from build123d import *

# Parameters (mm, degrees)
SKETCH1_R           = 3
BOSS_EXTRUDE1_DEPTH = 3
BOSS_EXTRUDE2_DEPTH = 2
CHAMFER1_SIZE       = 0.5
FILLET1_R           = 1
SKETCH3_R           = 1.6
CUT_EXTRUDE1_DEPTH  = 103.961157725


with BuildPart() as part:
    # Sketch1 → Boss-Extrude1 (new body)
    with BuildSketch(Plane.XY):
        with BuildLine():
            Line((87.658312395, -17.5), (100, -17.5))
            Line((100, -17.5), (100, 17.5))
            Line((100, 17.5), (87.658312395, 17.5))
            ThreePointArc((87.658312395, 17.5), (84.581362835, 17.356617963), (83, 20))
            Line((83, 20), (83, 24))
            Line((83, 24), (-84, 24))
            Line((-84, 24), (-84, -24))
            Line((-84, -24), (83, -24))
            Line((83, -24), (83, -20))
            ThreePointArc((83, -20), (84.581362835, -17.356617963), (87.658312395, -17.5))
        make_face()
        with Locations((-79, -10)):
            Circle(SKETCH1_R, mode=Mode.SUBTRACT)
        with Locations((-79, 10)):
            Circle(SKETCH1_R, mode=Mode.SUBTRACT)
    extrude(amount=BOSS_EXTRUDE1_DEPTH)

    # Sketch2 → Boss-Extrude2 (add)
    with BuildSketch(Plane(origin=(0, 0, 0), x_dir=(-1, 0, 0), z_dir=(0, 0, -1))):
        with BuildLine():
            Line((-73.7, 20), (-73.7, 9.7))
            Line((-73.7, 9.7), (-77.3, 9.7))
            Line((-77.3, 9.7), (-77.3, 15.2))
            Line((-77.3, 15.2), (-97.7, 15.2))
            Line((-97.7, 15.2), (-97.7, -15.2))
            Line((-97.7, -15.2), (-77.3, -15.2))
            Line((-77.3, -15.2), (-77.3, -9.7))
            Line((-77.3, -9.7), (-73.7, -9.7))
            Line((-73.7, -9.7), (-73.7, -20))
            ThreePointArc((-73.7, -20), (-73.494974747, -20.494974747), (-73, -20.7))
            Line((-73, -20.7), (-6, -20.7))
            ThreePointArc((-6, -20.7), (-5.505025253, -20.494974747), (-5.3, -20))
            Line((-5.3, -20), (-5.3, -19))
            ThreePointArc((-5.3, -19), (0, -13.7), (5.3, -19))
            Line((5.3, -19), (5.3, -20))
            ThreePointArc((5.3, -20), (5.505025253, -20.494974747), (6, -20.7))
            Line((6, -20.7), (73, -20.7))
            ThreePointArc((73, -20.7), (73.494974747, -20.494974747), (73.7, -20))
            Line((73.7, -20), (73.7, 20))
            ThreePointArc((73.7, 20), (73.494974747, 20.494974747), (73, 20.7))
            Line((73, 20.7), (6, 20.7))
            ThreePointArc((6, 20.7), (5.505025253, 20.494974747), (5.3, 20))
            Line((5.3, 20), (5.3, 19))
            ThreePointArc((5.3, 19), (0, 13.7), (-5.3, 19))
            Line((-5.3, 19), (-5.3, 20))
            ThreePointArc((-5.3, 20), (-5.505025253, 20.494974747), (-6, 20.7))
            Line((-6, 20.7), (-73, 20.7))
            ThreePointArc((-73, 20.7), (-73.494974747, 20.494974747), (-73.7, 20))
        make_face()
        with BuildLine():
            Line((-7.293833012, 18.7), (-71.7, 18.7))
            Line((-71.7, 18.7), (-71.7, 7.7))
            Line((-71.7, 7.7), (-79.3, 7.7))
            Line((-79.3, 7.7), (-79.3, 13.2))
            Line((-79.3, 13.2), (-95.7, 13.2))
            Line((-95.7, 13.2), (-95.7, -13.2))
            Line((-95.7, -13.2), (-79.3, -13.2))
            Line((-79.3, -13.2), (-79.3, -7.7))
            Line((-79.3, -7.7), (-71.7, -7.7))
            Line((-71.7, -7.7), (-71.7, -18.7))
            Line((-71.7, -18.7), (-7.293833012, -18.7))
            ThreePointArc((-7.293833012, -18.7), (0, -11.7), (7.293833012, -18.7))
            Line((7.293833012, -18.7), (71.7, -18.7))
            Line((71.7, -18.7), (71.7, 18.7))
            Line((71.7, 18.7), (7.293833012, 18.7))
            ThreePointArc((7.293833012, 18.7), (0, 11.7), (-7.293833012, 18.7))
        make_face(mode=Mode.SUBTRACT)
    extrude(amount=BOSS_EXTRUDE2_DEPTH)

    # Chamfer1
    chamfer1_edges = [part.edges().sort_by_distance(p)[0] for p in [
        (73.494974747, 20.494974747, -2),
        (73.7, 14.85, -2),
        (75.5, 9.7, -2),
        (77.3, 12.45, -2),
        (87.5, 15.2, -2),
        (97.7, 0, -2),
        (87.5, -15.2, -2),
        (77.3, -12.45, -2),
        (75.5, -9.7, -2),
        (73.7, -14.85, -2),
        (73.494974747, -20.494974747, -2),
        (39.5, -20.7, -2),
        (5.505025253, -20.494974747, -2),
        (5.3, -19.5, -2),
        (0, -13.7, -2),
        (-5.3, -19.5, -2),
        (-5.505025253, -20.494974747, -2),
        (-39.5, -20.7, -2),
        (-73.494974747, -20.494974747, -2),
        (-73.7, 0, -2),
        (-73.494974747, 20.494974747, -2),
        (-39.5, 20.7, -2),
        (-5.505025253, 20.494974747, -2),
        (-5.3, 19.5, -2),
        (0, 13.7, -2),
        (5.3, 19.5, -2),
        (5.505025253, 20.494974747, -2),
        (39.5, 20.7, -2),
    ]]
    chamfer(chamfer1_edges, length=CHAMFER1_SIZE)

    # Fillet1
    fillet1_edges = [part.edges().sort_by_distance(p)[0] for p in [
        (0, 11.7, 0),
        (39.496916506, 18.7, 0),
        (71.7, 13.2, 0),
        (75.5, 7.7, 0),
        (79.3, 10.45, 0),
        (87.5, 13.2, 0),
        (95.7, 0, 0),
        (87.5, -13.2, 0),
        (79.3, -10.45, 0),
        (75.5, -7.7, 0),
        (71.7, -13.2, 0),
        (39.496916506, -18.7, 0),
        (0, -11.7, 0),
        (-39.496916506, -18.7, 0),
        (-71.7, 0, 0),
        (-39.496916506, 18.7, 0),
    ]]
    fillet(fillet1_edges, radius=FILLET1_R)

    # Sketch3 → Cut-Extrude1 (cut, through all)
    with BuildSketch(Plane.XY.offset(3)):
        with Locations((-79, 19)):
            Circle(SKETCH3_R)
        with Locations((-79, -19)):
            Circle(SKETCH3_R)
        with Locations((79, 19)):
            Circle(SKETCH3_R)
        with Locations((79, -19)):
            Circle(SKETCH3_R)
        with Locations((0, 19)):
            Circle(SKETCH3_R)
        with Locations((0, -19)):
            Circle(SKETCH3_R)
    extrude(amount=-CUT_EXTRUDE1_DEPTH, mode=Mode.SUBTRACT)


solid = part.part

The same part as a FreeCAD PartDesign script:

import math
import FreeCAD as App
import Part
import Sketcher
Q = App.Units.Quantity


def edges_at(feature, points):
    """Names of the edges that pass closest to the given points."""
    edges = feature.Shape.Edges
    near = lambda p: min(range(len(edges)), key=lambda i: edges[i].distToShape(Part.Vertex(*p))[0])
    return sorted({f"Edge{near(p) + 1}" for p in points})

doc = App.newDocument("Part")
params = doc.addObject("Spreadsheet::Sheet", "Params")
for row, (alias, value) in enumerate([
    ("sketch1_diameter", "6 mm"),
    ("sketch1_width", "167 mm"),
    ("sketch1_height", "35 mm"),
    ("sketch1_height2", "4 mm"),
    ("sketch1_height3", "48 mm"),
    ("pad1_length", "3 mm"),
    ("sketch2_radius", "0.7 mm"),
    ("sketch2_radius2", "5.3 mm"),
    ("sketch2_radius3", "7.3 mm"),
    ("sketch2_width", "67 mm"),
    ("sketch2_height", "1 mm"),
    ("pad2_length", "2 mm"),
    ("chamfer_size", "0.5 mm"),
    ("fillet_radius", "1 mm"),
    ("sketch3_diameter", "3.2 mm"),
], start=1):
    params.set(f"A{row}", alias)
    params.set(f"B{row}", "=" + value)
    params.setAlias(f"B{row}", alias)

body = doc.addObject("PartDesign::Body", "Body")

# Sketch on XY plane
sketch1 = doc.addObject("Sketcher::SketchObject", "Sketch")
body.addObject(sketch1)
sketch1.AttachmentSupport = (doc.XY_Plane, [""])
sketch1.MapMode = "FlatFace"
sketch1.addGeometry([
    Part.LineSegment(App.Vector(87.7, -17.5, 0), App.Vector(100, -17.5, 0)),  # 0
    Part.LineSegment(App.Vector(100, -17.5, 0), App.Vector(100, 17.5, 0)),  # 1
    Part.LineSegment(App.Vector(100, 17.5, 0), App.Vector(87.7, 17.5, 0)),  # 2
    Part.ArcOfCircle(Part.Circle(App.Vector(86, 20, 0), App.Vector(0, 0, 1), 3), math.radians(180), math.radians(304)),  # 3
    Part.LineSegment(App.Vector(83, 20, 0), App.Vector(83, 24, 0)),  # 4
    Part.LineSegment(App.Vector(83, 24, 0), App.Vector(-84, 24, 0)),  # 5
    Part.LineSegment(App.Vector(-84, 24, 0), App.Vector(-84, -24, 0)),  # 6
    Part.LineSegment(App.Vector(-84, -24, 0), App.Vector(83, -24, 0)),  # 7
    Part.LineSegment(App.Vector(83, -24, 0), App.Vector(83, -20, 0)),  # 8
    Part.ArcOfCircle(Part.Circle(App.Vector(86, -20, 0), App.Vector(0, 0, 1), 3), math.radians(56), math.radians(180)),  # 9
    Part.Circle(App.Vector(-79, -10, 0), App.Vector(0, 0, 1), 3),  # 10
    Part.Circle(App.Vector(-79, 10, 0), App.Vector(0, 0, 1), 3),  # 11
], False)
sketch1.addConstraint([
    Sketcher.Constraint("Coincident", 0, 2, 1, 1),
    Sketcher.Constraint("Coincident", 1, 2, 2, 1),
    Sketcher.Constraint("Coincident", 2, 2, 3, 2),
    Sketcher.Constraint("Tangent", 3, 1, 4, 1),
    Sketcher.Constraint("Coincident", 4, 2, 5, 1),
    Sketcher.Constraint("Coincident", 5, 2, 6, 1),
    Sketcher.Constraint("Coincident", 6, 2, 7, 1),
    Sketcher.Constraint("Coincident", 7, 2, 8, 1),
    Sketcher.Constraint("Tangent", 8, 2, 9, 2),
    Sketcher.Constraint("Coincident", 9, 1, 0, 1),
    Sketcher.Constraint("Horizontal", 0),
    Sketcher.Constraint("Vertical", 1),
    Sketcher.Constraint("Horizontal", 2),
    Sketcher.Constraint("Vertical", 4),
    Sketcher.Constraint("Horizontal", 5),
    Sketcher.Constraint("Vertical", 6),
    Sketcher.Constraint("Horizontal", 7),
    Sketcher.Constraint("Vertical", 8),
    Sketcher.Constraint("Equal", 3, 9),
    Sketcher.Constraint("Equal", 9, 10),
    Sketcher.Constraint("Equal", 10, 11),
    Sketcher.Constraint("Symmetric", 3, 3, 9, 3, -1),
    Sketcher.Constraint("Symmetric", 10, 3, 11, 3, -1),
    Sketcher.Constraint("Vertical", 2, 2, 9, 1),
    Sketcher.Constraint("Equal", 4, 8),
    Sketcher.Constraint("Diameter", 10, Q("6 mm")),
    Sketcher.Constraint("DistanceX", 5, 2, 5, 1, Q("167 mm")),
    Sketcher.Constraint("DistanceY", 1, 1, 1, 2, Q("35 mm")),
    Sketcher.Constraint("DistanceY", 4, 1, 4, 2, Q("4 mm")),
    Sketcher.Constraint("DistanceY", 6, 2, 6, 1, Q("48 mm")),
    Sketcher.Constraint("DistanceX", -1, 1, 3, 3, Q("86 mm")),
    Sketcher.Constraint("DistanceX", 10, 3, -1, 1, Q("79 mm")),
    Sketcher.Constraint("DistanceY", 10, 3, -1, 1, Q("10 mm")),
    Sketcher.Constraint("DistanceX", -1, 1, 0, 2, Q("100 mm")),
])
sketch1.setExpression("Constraints[25]", "Params.sketch1_diameter")
sketch1.setExpression("Constraints[26]", "Params.sketch1_width")
sketch1.setExpression("Constraints[27]", "Params.sketch1_height")
sketch1.setExpression("Constraints[28]", "Params.sketch1_height2")
sketch1.setExpression("Constraints[29]", "Params.sketch1_height3")
pad1 = doc.addObject("PartDesign::Pad", "Pad")
body.addObject(pad1)
pad1.Profile = sketch1
pad1.setExpression("Length", "Params.pad1_length")

# Sketch on XY plane
sketch2 = doc.addObject("Sketcher::SketchObject", "Sketch001")
body.addObject(sketch2)
sketch2.AttachmentSupport = (doc.XY_Plane, [""])
sketch2.MapMode = "FlatFace"
sketch2.addGeometry([
    Part.LineSegment(App.Vector(73.7, 20, 0), App.Vector(73.7, 9.7, 0)),  # 0
    Part.LineSegment(App.Vector(73.7, 9.7, 0), App.Vector(77.3, 9.7, 0)),  # 1
    Part.LineSegment(App.Vector(77.3, 9.7, 0), App.Vector(77.3, 15.2, 0)),  # 2
    Part.LineSegment(App.Vector(77.3, 15.2, 0), App.Vector(97.7, 15.2, 0)),  # 3
    Part.LineSegment(App.Vector(97.7, 15.2, 0), App.Vector(97.7, -15.2, 0)),  # 4
    Part.LineSegment(App.Vector(97.7, -15.2, 0), App.Vector(77.3, -15.2, 0)),  # 5
    Part.LineSegment(App.Vector(77.3, -15.2, 0), App.Vector(77.3, -9.7, 0)),  # 6
    Part.LineSegment(App.Vector(77.3, -9.7, 0), App.Vector(73.7, -9.7, 0)),  # 7
    Part.LineSegment(App.Vector(73.7, -9.7, 0), App.Vector(73.7, -20, 0)),  # 8
    Part.ArcOfCircle(Part.Circle(App.Vector(73, -20, 0), App.Vector(0, 0, 1), 0.7), math.radians(-90), math.radians(0)),  # 9
    Part.LineSegment(App.Vector(73, -20.7, 0), App.Vector(6, -20.7, 0)),  # 10
    Part.ArcOfCircle(Part.Circle(App.Vector(6, -20, 0), App.Vector(0, 0, 1), 0.7), math.radians(180), math.radians(270)),  # 11
    Part.LineSegment(App.Vector(5.3, -20, 0), App.Vector(5.3, -19, 0)),  # 12
    Part.ArcOfCircle(Part.Circle(App.Vector(0, -19, 0), App.Vector(0, 0, 1), 5.3), math.radians(0), math.radians(180)),  # 13
    Part.LineSegment(App.Vector(-5.3, -19, 0), App.Vector(-5.3, -20, 0)),  # 14
    Part.ArcOfCircle(Part.Circle(App.Vector(-6, -20, 0), App.Vector(0, 0, 1), 0.7), math.radians(-90), math.radians(0)),  # 15
    Part.LineSegment(App.Vector(-6, -20.7, 0), App.Vector(-73, -20.7, 0)),  # 16
    Part.ArcOfCircle(Part.Circle(App.Vector(-73, -20, 0), App.Vector(0, 0, 1), 0.7), math.radians(180), math.radians(270)),  # 17
    Part.LineSegment(App.Vector(-73.7, -20, 0), App.Vector(-73.7, 20, 0)),  # 18
    Part.ArcOfCircle(Part.Circle(App.Vector(-73, 20, 0), App.Vector(0, 0, 1), 0.7), math.radians(90), math.radians(180)),  # 19
    Part.LineSegment(App.Vector(-73, 20.7, 0), App.Vector(-6, 20.7, 0)),  # 20
    Part.ArcOfCircle(Part.Circle(App.Vector(-6, 20, 0), App.Vector(0, 0, 1), 0.7), math.radians(0), math.radians(90)),  # 21
    Part.LineSegment(App.Vector(-5.3, 20, 0), App.Vector(-5.3, 19, 0)),  # 22
    Part.ArcOfCircle(Part.Circle(App.Vector(0, 19, 0), App.Vector(0, 0, 1), 5.3), math.radians(180), math.radians(360)),  # 23
    Part.LineSegment(App.Vector(5.3, 19, 0), App.Vector(5.3, 20, 0)),  # 24
    Part.ArcOfCircle(Part.Circle(App.Vector(6, 20, 0), App.Vector(0, 0, 1), 0.7), math.radians(90), math.radians(180)),  # 25
    Part.LineSegment(App.Vector(6, 20.7, 0), App.Vector(73, 20.7, 0)),  # 26
    Part.ArcOfCircle(Part.Circle(App.Vector(73, 20, 0), App.Vector(0, 0, 1), 0.7), math.radians(0), math.radians(90)),  # 27
    Part.LineSegment(App.Vector(71.7, 18.7, 0), App.Vector(7.3, 18.7, 0)),  # 28
    Part.ArcOfCircle(Part.Circle(App.Vector(0, 19, 0), App.Vector(0, 0, 1), 7.3), math.radians(-178), math.radians(-2)),  # 29
    Part.LineSegment(App.Vector(-7.3, 18.7, 0), App.Vector(-71.7, 18.7, 0)),  # 30
    Part.LineSegment(App.Vector(-71.7, 18.7, 0), App.Vector(-71.7, -18.7, 0)),  # 31
    Part.LineSegment(App.Vector(-71.7, -18.7, 0), App.Vector(-7.3, -18.7, 0)),  # 32
    Part.ArcOfCircle(Part.Circle(App.Vector(0, -19, 0), App.Vector(0, 0, 1), 7.3), math.radians(2), math.radians(178)),  # 33
    Part.LineSegment(App.Vector(7.3, -18.7, 0), App.Vector(71.7, -18.7, 0)),  # 34
    Part.LineSegment(App.Vector(71.7, -18.7, 0), App.Vector(71.7, -7.7, 0)),  # 35
    Part.LineSegment(App.Vector(71.7, -7.7, 0), App.Vector(79.3, -7.7, 0)),  # 36
    Part.LineSegment(App.Vector(79.3, -7.7, 0), App.Vector(79.3, -13.2, 0)),  # 37
    Part.LineSegment(App.Vector(79.3, -13.2, 0), App.Vector(95.7, -13.2, 0)),  # 38
    Part.LineSegment(App.Vector(95.7, -13.2, 0), App.Vector(95.7, 13.2, 0)),  # 39
    Part.LineSegment(App.Vector(95.7, 13.2, 0), App.Vector(79.3, 13.2, 0)),  # 40
    Part.LineSegment(App.Vector(79.3, 13.2, 0), App.Vector(79.3, 7.7, 0)),  # 41
    Part.LineSegment(App.Vector(79.3, 7.7, 0), App.Vector(71.7, 7.7, 0)),  # 42
    Part.LineSegment(App.Vector(71.7, 7.7, 0), App.Vector(71.7, 18.7, 0)),  # 43
], False)
sketch2.addConstraint([
    Sketcher.Constraint("Coincident", 0, 2, 1, 1),
    Sketcher.Constraint("Coincident", 1, 2, 2, 1),
    Sketcher.Constraint("Coincident", 2, 2, 3, 1),
    Sketcher.Constraint("Coincident", 3, 2, 4, 1),
    Sketcher.Constraint("Coincident", 4, 2, 5, 1),
    Sketcher.Constraint("Coincident", 5, 2, 6, 1),
    Sketcher.Constraint("Coincident", 6, 2, 7, 1),
    Sketcher.Constraint("Coincident", 7, 2, 8, 1),
    Sketcher.Constraint("Tangent", 8, 2, 9, 2),
    Sketcher.Constraint("Tangent", 9, 1, 10, 1),
    Sketcher.Constraint("Tangent", 10, 2, 11, 2),
    Sketcher.Constraint("Tangent", 11, 1, 12, 1),
    Sketcher.Constraint("Tangent", 12, 2, 13, 1),
    Sketcher.Constraint("Tangent", 13, 2, 14, 1),
    Sketcher.Constraint("Tangent", 14, 2, 15, 2),
    Sketcher.Constraint("Tangent", 15, 1, 16, 1),
    Sketcher.Constraint("Tangent", 16, 2, 17, 2),
    Sketcher.Constraint("Tangent", 17, 1, 18, 1),
    Sketcher.Constraint("Tangent", 18, 2, 19, 2),
    Sketcher.Constraint("Tangent", 19, 1, 20, 1),
    Sketcher.Constraint("Tangent", 20, 2, 21, 2),
    Sketcher.Constraint("Tangent", 21, 1, 22, 1),
    Sketcher.Constraint("Tangent", 22, 2, 23, 1),
    Sketcher.Constraint("Tangent", 23, 2, 24, 1),
    Sketcher.Constraint("Tangent", 24, 2, 25, 2),
    Sketcher.Constraint("Tangent", 25, 1, 26, 1),
    Sketcher.Constraint("Tangent", 26, 2, 27, 2),
    Sketcher.Constraint("Tangent", 27, 1, 0, 1),
    Sketcher.Constraint("Coincident", 28, 2, 29, 2),
    Sketcher.Constraint("Coincident", 29, 1, 30, 1),
    Sketcher.Constraint("Coincident", 30, 2, 31, 1),
    Sketcher.Constraint("Coincident", 31, 2, 32, 1),
    Sketcher.Constraint("Coincident", 32, 2, 33, 2),
    Sketcher.Constraint("Coincident", 33, 1, 34, 1),
    Sketcher.Constraint("Coincident", 34, 2, 35, 1),
    Sketcher.Constraint("Coincident", 35, 2, 36, 1),
    Sketcher.Constraint("Coincident", 36, 2, 37, 1),
    Sketcher.Constraint("Coincident", 37, 2, 38, 1),
    Sketcher.Constraint("Coincident", 38, 2, 39, 1),
    Sketcher.Constraint("Coincident", 39, 2, 40, 1),
    Sketcher.Constraint("Coincident", 40, 2, 41, 1),
    Sketcher.Constraint("Coincident", 41, 2, 42, 1),
    Sketcher.Constraint("Coincident", 42, 2, 43, 1),
    Sketcher.Constraint("Coincident", 43, 2, 28, 1),
    Sketcher.Constraint("Vertical", 0),
    Sketcher.Constraint("Horizontal", 1),
    Sketcher.Constraint("Vertical", 2),
    Sketcher.Constraint("Horizontal", 3),
    Sketcher.Constraint("Vertical", 4),
    Sketcher.Constraint("Horizontal", 5),
    Sketcher.Constraint("Vertical", 6),
    Sketcher.Constraint("Horizontal", 7),
    Sketcher.Constraint("Vertical", 8),
    Sketcher.Constraint("Horizontal", 10),
    Sketcher.Constraint("Vertical", 12),
    Sketcher.Constraint("Vertical", 14),
    Sketcher.Constraint("Horizontal", 16),
    Sketcher.Constraint("Vertical", 18),
    Sketcher.Constraint("Horizontal", 20),
    Sketcher.Constraint("Vertical", 22),
    Sketcher.Constraint("Vertical", 24),
    Sketcher.Constraint("Horizontal", 26),
    Sketcher.Constraint("Horizontal", 28),
    Sketcher.Constraint("Horizontal", 30),
    Sketcher.Constraint("Vertical", 31),
    Sketcher.Constraint("Horizontal", 32),
    Sketcher.Constraint("Horizontal", 34),
    Sketcher.Constraint("Vertical", 35),
    Sketcher.Constraint("Horizontal", 36),
    Sketcher.Constraint("Vertical", 37),
    Sketcher.Constraint("Horizontal", 38),
    Sketcher.Constraint("Vertical", 39),
    Sketcher.Constraint("Horizontal", 40),
    Sketcher.Constraint("Vertical", 41),
    Sketcher.Constraint("Horizontal", 42),
    Sketcher.Constraint("Vertical", 43),
    Sketcher.Constraint("Coincident", 29, 3, 23, 3),
    Sketcher.Constraint("Coincident", 33, 3, 13, 3),
    Sketcher.Constraint("Equal", 9, 11),
    Sketcher.Constraint("Equal", 11, 15),
    Sketcher.Constraint("Equal", 15, 17),
    Sketcher.Constraint("Equal", 17, 19),
    Sketcher.Constraint("Equal", 19, 21),
    Sketcher.Constraint("Equal", 13, 23),
    Sketcher.Constraint("Equal", 21, 25),
    Sketcher.Constraint("Equal", 25, 27),
    Sketcher.Constraint("Equal", 29, 33),
    Sketcher.Constraint("Symmetric", 9, 3, 19, 3, -1, 1),
    Sketcher.Constraint("Symmetric", 13, 3, 23, 3, -1, 1),
    Sketcher.Constraint("Symmetric", 17, 3, 27, 3, -1, 1),
    Sketcher.Constraint("Symmetric", 30, 2, 34, 2, -1, 1),
    Sketcher.Constraint("Symmetric", 31, 2, 43, 2, -1, 1),
    Sketcher.Constraint("Symmetric", 11, 3, 15, 3, -2),
    Sketcher.Constraint("Symmetric", 2, 2, 5, 2, -1),
    Sketcher.Constraint("Symmetric", 37, 2, 40, 2, -1),
    Sketcher.Constraint("Horizontal", 28, 2, 29, 1),
    Sketcher.Constraint("Equal", 2, 6),
    Sketcher.Constraint("Equal", 6, 37),
    Sketcher.Constraint("Equal", 37, 41),
    Sketcher.Constraint("Radius", 9, Q("0.7 mm")),
    Sketcher.Constraint("Radius", 13, Q("5.3 mm")),
    Sketcher.Constraint("Radius", 29, Q("7.3 mm")),
    Sketcher.Constraint("DistanceX", 10, 2, 10, 1, Q("67 mm")),
    Sketcher.Constraint("DistanceY", 12, 1, 12, 2, Q("1 mm")),
    Sketcher.Constraint("DistanceY", 18, 1, 18, 2, Q("40 mm")),
    Sketcher.Constraint("DistanceY", 35, 1, 35, 2, Q("11 mm")),
    Sketcher.Constraint("DistanceX", 1, 1, 1, 2, Q("3.6 mm")),
    Sketcher.Constraint("DistanceX", 3, 1, 3, 2, Q("20.4 mm")),
    Sketcher.Constraint("DistanceX", 36, 1, 36, 2, Q("7.6 mm")),
    Sketcher.Constraint("DistanceX", 38, 1, 38, 2, Q("16.4 mm")),
    Sketcher.Constraint("DistanceY", 0, 2, 0, 1, Q("10.3 mm")),
    Sketcher.Constraint("DistanceY", 2, 1, 2, 2, Q("5.5 mm")),
    Sketcher.Constraint("DistanceY", 31, 2, 31, 1, Q("37.4 mm")),
    Sketcher.Constraint("DistanceX", 18, 2, 30, 2, Q("2 mm")),
])
sketch2.setExpression("Constraints[99]", "Params.sketch2_radius")
sketch2.setExpression("Constraints[100]", "Params.sketch2_radius2")
sketch2.setExpression("Constraints[101]", "Params.sketch2_radius3")
sketch2.setExpression("Constraints[102]", "Params.sketch2_width")
sketch2.setExpression("Constraints[103]", "Params.sketch2_height")
pad2 = doc.addObject("PartDesign::Pad", "Pad001")
body.addObject(pad2)
pad2.Profile = sketch2
pad2.setExpression("Length", "Params.pad2_length")
pad2.Reversed = True
doc.recompute()

chamfer = doc.addObject("PartDesign::Chamfer", "Chamfer")
body.addObject(chamfer)
chamfer.Base = (pad2, edges_at(pad2, [
    (73.495, 20.495, -2),
    (73.7, 14.85, -2),
    (75.5, 9.7, -2),
    (77.3, 12.45, -2),
    (87.5, 15.2, -2),
    (97.7, 0, -2),
    (87.5, -15.2, -2),
    (77.3, -12.45, -2),
    (75.5, -9.7, -2),
    (73.7, -14.85, -2),
    (73.495, -20.495, -2),
    (39.5, -20.7, -2),
    (5.505, -20.495, -2),
    (5.3, -19.5, -2),
    (0, -13.7, -2),
    (-5.3, -19.5, -2),
    (-5.505, -20.495, -2),
    (-39.5, -20.7, -2),
    (-73.495, -20.495, -2),
    (-73.7, 0, -2),
    (-73.495, 20.495, -2),
    (-39.5, 20.7, -2),
    (-5.505, 20.495, -2),
    (-5.3, 19.5, -2),
    (0, 13.7, -2),
    (5.3, 19.5, -2),
    (5.505, 20.495, -2),
    (39.5, 20.7, -2),
]))
chamfer.setExpression("Size", "Params.chamfer_size")
doc.recompute()

fillet = doc.addObject("PartDesign::Fillet", "Fillet")
body.addObject(fillet)
fillet.Base = (chamfer, edges_at(chamfer, [
    (0, 11.7, 0),
    (39.497, 18.7, 0),
    (71.7, 13.2, 0),
    (75.5, 7.7, 0),
    (79.3, 10.45, 0),
    (87.5, 13.2, 0),
    (95.7, 0, 0),
    (87.5, -13.2, 0),
    (79.3, -10.45, 0),
    (75.5, -7.7, 0),
    (71.7, -13.2, 0),
    (39.497, -18.7, 0),
    (0, -11.7, 0),
    (-39.497, -18.7, 0),
    (-71.7, 0, 0),
    (-39.497, 18.7, 0),
]))
fillet.setExpression("Radius", "Params.fillet_radius")

# Sketch on XY plane
sketch3 = doc.addObject("Sketcher::SketchObject", "Sketch002")
body.addObject(sketch3)
sketch3.AttachmentSupport = (doc.XY_Plane, [""])
sketch3.MapMode = "FlatFace"
sketch3.AttachmentOffset = App.Placement(App.Vector(0, 0, 3), App.Rotation())
sketch3.addGeometry([
    Part.Circle(App.Vector(-79, 19, 0), App.Vector(0, 0, 1), 1.6),  # 0
    Part.Circle(App.Vector(-79, -19, 0), App.Vector(0, 0, 1), 1.6),  # 1
    Part.Circle(App.Vector(79, 19, 0), App.Vector(0, 0, 1), 1.6),  # 2
    Part.Circle(App.Vector(79, -19, 0), App.Vector(0, 0, 1), 1.6),  # 3
    Part.Circle(App.Vector(0, 19, 0), App.Vector(0, 0, 1), 1.6),  # 4
    Part.Circle(App.Vector(0, -19, 0), App.Vector(0, 0, 1), 1.6),  # 5
], False)
sketch3.addConstraint([
    Sketcher.Constraint("Equal", 0, 1),
    Sketcher.Constraint("Equal", 1, 2),
    Sketcher.Constraint("Equal", 2, 3),
    Sketcher.Constraint("Equal", 3, 4),
    Sketcher.Constraint("Equal", 4, 5),
    Sketcher.Constraint("Symmetric", 1, 3, 2, 3, -1, 1),
    Sketcher.Constraint("Symmetric", 0, 3, 3, 3, -1, 1),
    Sketcher.Constraint("Symmetric", 4, 3, 5, 3, -1, 1),
    Sketcher.Constraint("Symmetric", 0, 3, 2, 3, -2),
    Sketcher.Constraint("PointOnObject", 4, 3, -2),
    Sketcher.Constraint("Horizontal", 2, 3, 4, 3),
    Sketcher.Constraint("Diameter", 0, Q("3.2 mm")),
    Sketcher.Constraint("DistanceX", 0, 3, -1, 1, Q("79 mm")),
    Sketcher.Constraint("DistanceY", -1, 1, 0, 3, Q("19 mm")),
])
sketch3.setExpression("Constraints[11]", "Params.sketch3_diameter")
pocket1 = doc.addObject("PartDesign::Pocket", "Pocket")
body.addObject(pocket1)
pocket1.Profile = sketch3
pocket1.Type = "ThroughAll"

doc.recompute()
